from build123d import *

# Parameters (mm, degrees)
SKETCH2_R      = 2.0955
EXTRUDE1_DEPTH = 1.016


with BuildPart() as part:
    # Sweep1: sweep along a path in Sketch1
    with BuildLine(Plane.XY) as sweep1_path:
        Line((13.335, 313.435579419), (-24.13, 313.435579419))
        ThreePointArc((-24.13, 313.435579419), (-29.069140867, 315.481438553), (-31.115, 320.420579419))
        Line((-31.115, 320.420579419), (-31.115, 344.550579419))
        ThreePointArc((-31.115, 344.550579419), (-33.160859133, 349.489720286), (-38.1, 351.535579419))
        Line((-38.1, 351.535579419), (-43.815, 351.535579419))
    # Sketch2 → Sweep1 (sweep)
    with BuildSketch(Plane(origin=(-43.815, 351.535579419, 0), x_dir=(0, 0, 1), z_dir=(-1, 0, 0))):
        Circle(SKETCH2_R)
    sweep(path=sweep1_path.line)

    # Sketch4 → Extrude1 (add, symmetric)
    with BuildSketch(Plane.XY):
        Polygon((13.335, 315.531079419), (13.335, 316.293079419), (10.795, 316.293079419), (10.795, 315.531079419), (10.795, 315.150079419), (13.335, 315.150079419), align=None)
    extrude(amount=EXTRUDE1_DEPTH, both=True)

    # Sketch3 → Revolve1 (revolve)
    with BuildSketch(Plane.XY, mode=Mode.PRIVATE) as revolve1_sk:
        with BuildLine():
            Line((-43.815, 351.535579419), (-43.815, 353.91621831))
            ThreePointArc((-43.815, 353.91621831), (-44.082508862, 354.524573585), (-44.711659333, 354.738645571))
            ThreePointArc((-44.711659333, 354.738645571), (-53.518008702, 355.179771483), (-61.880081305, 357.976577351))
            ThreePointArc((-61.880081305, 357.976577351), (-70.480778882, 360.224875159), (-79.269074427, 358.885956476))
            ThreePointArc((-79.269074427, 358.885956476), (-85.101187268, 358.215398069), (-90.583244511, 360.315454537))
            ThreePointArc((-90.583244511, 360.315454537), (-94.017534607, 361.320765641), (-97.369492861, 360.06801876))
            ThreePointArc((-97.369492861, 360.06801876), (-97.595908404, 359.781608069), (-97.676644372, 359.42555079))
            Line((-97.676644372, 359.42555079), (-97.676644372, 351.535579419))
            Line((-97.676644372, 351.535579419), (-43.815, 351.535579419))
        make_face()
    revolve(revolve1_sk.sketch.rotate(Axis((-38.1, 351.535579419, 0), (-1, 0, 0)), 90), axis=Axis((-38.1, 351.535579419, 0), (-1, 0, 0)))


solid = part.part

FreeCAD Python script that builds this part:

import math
import FreeCAD as App
import Part
import Sketcher
from FreeCAD import Vector
Q = App.Units.Quantity


def add_polygon(sketch, points):
    """Adds a closed chain of lines whose ends are joined by coincident constraints."""
    first, n = sketch.GeometryCount, len(points)
    for a, b in zip(points, points[1:] + points[:1]):
        sketch.addGeometry(Part.LineSegment(App.Vector(*a, 0), App.Vector(*b, 0)), False)
    for i in range(n):
        sketch.addConstraint(Sketcher.Constraint("Coincident", first + i, 2, first + (i + 1) % n, 1))

doc = App.newDocument("Part")
params = doc.addObject("Spreadsheet::Sheet", "Params")
for row, (alias, value) in enumerate([
    ("sketch1_diameter", "0.165 in"),
    ("sketch2_radius", "0.275 in"),
    ("sketch2_height", "0.95 in"),
    ("sketch2_width", "1.475 in"),
    ("sketch3_width", "0.1 in"),
    ("sketch3_height", "0.045 in"),
    ("pad1_length", "0.08 in"),
    ("revolution_angle", "360 deg"),
], start=1):
    params.set(f"A{row}", alias)
    params.set(f"B{row}", "=" + value)
    params.setAlias(f"B{row}", alias)

body = doc.addObject("PartDesign::Body", "Body")

# Sketch on YZ plane
sketch1 = body.newObject("Sketcher::SketchObject", "Sketch")
sketch1.AttachmentSupport = (doc.getObject("YZ_Plane"), [""])
sketch1.MapMode = "FlatFace"
sketch1.AttachmentOffset = App.Placement(Vector(0, 0, -1.725 * 25.4), App.Rotation())
sketch1.addGeometry(Part.Circle(Vector(351.5, 0, 0), Vector(0, 0, 1), 2.1), False)
sketch1.addConstraint([
    Sketcher.Constraint("PointOnObject", 0, 3, -1),
    Sketcher.Constraint("Diameter", 0, Q("0.165 in")),
    Sketcher.Constraint("DistanceX", -1, 1, 0, 3, Q("351.535579 mm")),
])
sketch1.setExpression("Constraints[1]", "Params.sketch1_diameter")

# Sketch on XY plane
sketch2 = body.newObject("Sketcher::SketchObject", "Sketch001")
sketch2.AttachmentSupport = (doc.getObject("XY_Plane"), [""])
sketch2.MapMode = "FlatFace"
sketch2.addGeometry([
    Part.LineSegment(Vector(13, 313, 0), Vector(-24, 313, 0)),  # 0
    Part.ArcOfCircle(Part.Circle(Vector(-24, 320, 0), Vector(0, 0, 1), 7), math.radians(180), math.radians(270)),  # 1
    Part.LineSegment(Vector(-31, 320, 0), Vector(-31, 345, 0)),  # 2
    Part.ArcOfCircle(Part.Circle(Vector(-38, 345, 0), Vector(0, 0, 1), 7), math.radians(0), math.radians(90)),  # 3
    Part.LineSegment(Vector(-38, 352, 0), Vector(-44, 352, 0)),  # 4
], False)
sketch2.addConstraint([
    Sketcher.Constraint("Tangent", 0, 2, 1, 2),
    Sketcher.Constraint("Tangent", 1, 1, 2, 1),
    Sketcher.Constraint("Tangent", 2, 2, 3, 1),
    Sketcher.Constraint("Tangent", 3, 2, 4, 1),
    Sketcher.Constraint("Horizontal", 0),
    Sketcher.Constraint("Vertical", 2),
    Sketcher.Constraint("Horizontal", 4),
    Sketcher.Constraint("Equal", 1, 3),
    Sketcher.Constraint("Radius", 1, Q("0.275 in")),
    Sketcher.Constraint("DistanceY", 2, 1, 2, 2, Q("0.95 in")),
    Sketcher.Constraint("DistanceX", 3, 3, -1, 1, Q("1.5 in")),
    Sketcher.Constraint("DistanceX", 4, 2, 2, 2, Q("0.5 in")),
    Sketcher.Constraint("DistanceX", 0, 2, 0, 1, Q("1.475 in")),
    Sketcher.Constraint("DistanceY", -1, 1, 1, 3, Q("320.420579 mm")),
])
sketch2.setExpression("Constraints[8]", "Params.sketch2_radius")
sketch2.setExpression("Constraints[9]", "Params.sketch2_height")
sketch2.setExpression("Constraints[12]", "Params.sketch2_width")
doc.recompute()

additivepipe = body.newObject("PartDesign::AdditivePipe", "AdditivePipe")
additivepipe.Profile = sketch1
additivepipe.Spine = (sketch2, ["Edge1", "Edge2", "Edge3", "Edge4", "Edge5"])

# Sketch on XY plane
sketch3 = body.newObject("Sketcher::SketchObject", "Sketch002")
sketch3.AttachmentSupport = (doc.getObject("XY_Plane"), [""])
sketch3.MapMode = "FlatFace"
add_polygon(sketch3, [(13.3, 316.3), (10.8, 316.3), (10.8, 315.2), (13.3, 315.2)])  # lines 0-3
sketch3.addConstraint([
    Sketcher.Constraint("Horizontal", 0),
    Sketcher.Constraint("Vertical", 1),
    Sketcher.Constraint("Horizontal", 2),
    Sketcher.Constraint("Vertical", 3),
    Sketcher.Constraint("DistanceX", 0, 2, 0, 1, Q("0.1 in")),
    Sketcher.Constraint("DistanceY", 1, 2, 1, 1, Q("0.045 in")),
    Sketcher.Constraint("DistanceX", -1, 1, 0, 2, Q("0.425 in")),
    Sketcher.Constraint("DistanceY", -1, 1, 0, 2, Q("316.293079 mm")),
])
sketch3.setExpression("Constraints[8]", "Params.sketch3_width")
sketch3.setExpression("Constraints[9]", "Params.sketch3_height")
pad1 = body.newObject("PartDesign::Pad", "Pad")
pad1.Profile = sketch3
pad1.setExpression("Length", "Params.pad1_length")
pad1.Midplane = True

# Sketch on XY plane
sketch4 = body.newObject("Sketcher::SketchObject", "Sketch003")
sketch4.AttachmentSupport = (doc.getObject("XY_Plane"), [""])
sketch4.MapMode = "FlatFace"
sketch4.addGeometry([
    Part.LineSegment(Vector(-43.8, 351.5, 0), Vector(-43.8, 353.9, 0)),  # 0
    Part.ArcOfCircle(Part.Circle(Vector(-44.6, 353.9, 0), Vector(0, 0, 1), 0.8), math.radians(0), math.radians(95)),  # 1
    Part.ArcOfCircle(Part.Circle(Vector(-47.5, 387, 0), Vector(0, 0, 1), 32.4), math.radians(-116), math.radians(-85)),  # 2
    Part.ArcOfCircle(Part.Circle(Vector(-71.6, 338.3, 0), Vector(0, 0, 1), 22), math.radians(64), math.radians(110)),  # 3
    Part.ArcOfCircle(Part.Circle(Vector(-83.6, 370.5, 0), Vector(0, 0, 1), 12.3), math.radians(-125), math.radians(-70)),  # 4
    Part.ArcOfCircle(Part.Circle(Vector(-93.8, 355.7, 0), Vector(0, 0, 1), 5.7), math.radians(55), math.radians(129)),  # 5
    Part.ArcOfCircle(Part.Circle(Vector(-96.9, 359.4, 0), Vector(0, 0, 1), 0.8), math.radians(129), math.radians(180)),  # 6
    Part.LineSegment(Vector(-97.7, 359.4, 0), Vector(-97.7, 351.5, 0)),  # 7
    Part.LineSegment(Vector(-97.7, 351.5, 0), Vector(-43.8, 351.5, 0)),  # 8
], False)
sketch4.addGeometry(Part.LineSegment(Vector(-43.8, 351.5, 0), Vector(-97.7, 351.5, 0)), True)  # axis
sketch4.addConstraint([
    Sketcher.Constraint("Tangent", 0, 2, 1, 1),
    Sketcher.Constraint("Tangent", 1, 2, 2, 2),
    Sketcher.Constraint("Tangent", 2, 1, 3, 1),
    Sketcher.Constraint("Tangent", 3, 2, 4, 2),
    Sketcher.Constraint("Tangent", 4, 1, 5, 1),
    Sketcher.Constraint("Tangent", 5, 2, 6, 1),
    Sketcher.Constraint("Tangent", 6, 2, 7, 1),
    Sketcher.Constraint("Coincident", 7, 2, 8, 1),
    Sketcher.Constraint("Coincident", 8, 2, 0, 1),
    Sketcher.Constraint("Vertical", 0),
    Sketcher.Constraint("Vertical", 7),
    Sketcher.Constraint("Horizontal", 8),
    Sketcher.Constraint("Horizontal", 9),
    Sketcher.Constraint("Coincident", 9, 1, 8, 2),
    Sketcher.Constraint("Equal", 1, 6),
    Sketcher.Constraint("Vertical", 6, 2, 9, 2),
    Sketcher.Constraint("Radius", 1, Q("0.0325 in")),
    Sketcher.Constraint("DistanceX", 0, 2, -1, 1, Q("1.725 in")),
    Sketcher.Constraint("Radius", 2, Q("32.432044 mm")),
    Sketcher.Constraint("Radius", 3, Q("22.000066 mm")),
    Sketcher.Constraint("Radius", 4, Q("12.340714 mm")),
    Sketcher.Constraint("Radius", 5, Q("5.667036 mm")),
    Sketcher.Constraint("DistanceX", 3, 3, 2, 3, Q("0.9497 in")),
    Sketcher.Constraint("DistanceY", 0, 1, 0, 2, Q("2.380639 mm")),
    Sketcher.Constraint("DistanceY", 7, 2, 7, 1, Q("7.889971 mm")),
    Sketcher.Constraint("DistanceX", 6, 3, 5, 3, Q("3.0401 mm")),
    Sketcher.Constraint("DistanceY", 2, 1, 4, 3, Q("12.4822 mm")),
    Sketcher.Constraint("DistanceX", 8, 1, 8, 2, Q("53.861644 mm")),
    Sketcher.Constraint("DistanceY", -1, 1, 1, 3, Q("353.916218 mm")),
])
revolution = body.newObject("PartDesign::Revolution", "Revolution")
revolution.Profile = sketch4
revolution.ReferenceAxis = (sketch4, ["Axis0"])
revolution.setExpression("Angle", "Params.revolution_angle")

doc.recompute()
